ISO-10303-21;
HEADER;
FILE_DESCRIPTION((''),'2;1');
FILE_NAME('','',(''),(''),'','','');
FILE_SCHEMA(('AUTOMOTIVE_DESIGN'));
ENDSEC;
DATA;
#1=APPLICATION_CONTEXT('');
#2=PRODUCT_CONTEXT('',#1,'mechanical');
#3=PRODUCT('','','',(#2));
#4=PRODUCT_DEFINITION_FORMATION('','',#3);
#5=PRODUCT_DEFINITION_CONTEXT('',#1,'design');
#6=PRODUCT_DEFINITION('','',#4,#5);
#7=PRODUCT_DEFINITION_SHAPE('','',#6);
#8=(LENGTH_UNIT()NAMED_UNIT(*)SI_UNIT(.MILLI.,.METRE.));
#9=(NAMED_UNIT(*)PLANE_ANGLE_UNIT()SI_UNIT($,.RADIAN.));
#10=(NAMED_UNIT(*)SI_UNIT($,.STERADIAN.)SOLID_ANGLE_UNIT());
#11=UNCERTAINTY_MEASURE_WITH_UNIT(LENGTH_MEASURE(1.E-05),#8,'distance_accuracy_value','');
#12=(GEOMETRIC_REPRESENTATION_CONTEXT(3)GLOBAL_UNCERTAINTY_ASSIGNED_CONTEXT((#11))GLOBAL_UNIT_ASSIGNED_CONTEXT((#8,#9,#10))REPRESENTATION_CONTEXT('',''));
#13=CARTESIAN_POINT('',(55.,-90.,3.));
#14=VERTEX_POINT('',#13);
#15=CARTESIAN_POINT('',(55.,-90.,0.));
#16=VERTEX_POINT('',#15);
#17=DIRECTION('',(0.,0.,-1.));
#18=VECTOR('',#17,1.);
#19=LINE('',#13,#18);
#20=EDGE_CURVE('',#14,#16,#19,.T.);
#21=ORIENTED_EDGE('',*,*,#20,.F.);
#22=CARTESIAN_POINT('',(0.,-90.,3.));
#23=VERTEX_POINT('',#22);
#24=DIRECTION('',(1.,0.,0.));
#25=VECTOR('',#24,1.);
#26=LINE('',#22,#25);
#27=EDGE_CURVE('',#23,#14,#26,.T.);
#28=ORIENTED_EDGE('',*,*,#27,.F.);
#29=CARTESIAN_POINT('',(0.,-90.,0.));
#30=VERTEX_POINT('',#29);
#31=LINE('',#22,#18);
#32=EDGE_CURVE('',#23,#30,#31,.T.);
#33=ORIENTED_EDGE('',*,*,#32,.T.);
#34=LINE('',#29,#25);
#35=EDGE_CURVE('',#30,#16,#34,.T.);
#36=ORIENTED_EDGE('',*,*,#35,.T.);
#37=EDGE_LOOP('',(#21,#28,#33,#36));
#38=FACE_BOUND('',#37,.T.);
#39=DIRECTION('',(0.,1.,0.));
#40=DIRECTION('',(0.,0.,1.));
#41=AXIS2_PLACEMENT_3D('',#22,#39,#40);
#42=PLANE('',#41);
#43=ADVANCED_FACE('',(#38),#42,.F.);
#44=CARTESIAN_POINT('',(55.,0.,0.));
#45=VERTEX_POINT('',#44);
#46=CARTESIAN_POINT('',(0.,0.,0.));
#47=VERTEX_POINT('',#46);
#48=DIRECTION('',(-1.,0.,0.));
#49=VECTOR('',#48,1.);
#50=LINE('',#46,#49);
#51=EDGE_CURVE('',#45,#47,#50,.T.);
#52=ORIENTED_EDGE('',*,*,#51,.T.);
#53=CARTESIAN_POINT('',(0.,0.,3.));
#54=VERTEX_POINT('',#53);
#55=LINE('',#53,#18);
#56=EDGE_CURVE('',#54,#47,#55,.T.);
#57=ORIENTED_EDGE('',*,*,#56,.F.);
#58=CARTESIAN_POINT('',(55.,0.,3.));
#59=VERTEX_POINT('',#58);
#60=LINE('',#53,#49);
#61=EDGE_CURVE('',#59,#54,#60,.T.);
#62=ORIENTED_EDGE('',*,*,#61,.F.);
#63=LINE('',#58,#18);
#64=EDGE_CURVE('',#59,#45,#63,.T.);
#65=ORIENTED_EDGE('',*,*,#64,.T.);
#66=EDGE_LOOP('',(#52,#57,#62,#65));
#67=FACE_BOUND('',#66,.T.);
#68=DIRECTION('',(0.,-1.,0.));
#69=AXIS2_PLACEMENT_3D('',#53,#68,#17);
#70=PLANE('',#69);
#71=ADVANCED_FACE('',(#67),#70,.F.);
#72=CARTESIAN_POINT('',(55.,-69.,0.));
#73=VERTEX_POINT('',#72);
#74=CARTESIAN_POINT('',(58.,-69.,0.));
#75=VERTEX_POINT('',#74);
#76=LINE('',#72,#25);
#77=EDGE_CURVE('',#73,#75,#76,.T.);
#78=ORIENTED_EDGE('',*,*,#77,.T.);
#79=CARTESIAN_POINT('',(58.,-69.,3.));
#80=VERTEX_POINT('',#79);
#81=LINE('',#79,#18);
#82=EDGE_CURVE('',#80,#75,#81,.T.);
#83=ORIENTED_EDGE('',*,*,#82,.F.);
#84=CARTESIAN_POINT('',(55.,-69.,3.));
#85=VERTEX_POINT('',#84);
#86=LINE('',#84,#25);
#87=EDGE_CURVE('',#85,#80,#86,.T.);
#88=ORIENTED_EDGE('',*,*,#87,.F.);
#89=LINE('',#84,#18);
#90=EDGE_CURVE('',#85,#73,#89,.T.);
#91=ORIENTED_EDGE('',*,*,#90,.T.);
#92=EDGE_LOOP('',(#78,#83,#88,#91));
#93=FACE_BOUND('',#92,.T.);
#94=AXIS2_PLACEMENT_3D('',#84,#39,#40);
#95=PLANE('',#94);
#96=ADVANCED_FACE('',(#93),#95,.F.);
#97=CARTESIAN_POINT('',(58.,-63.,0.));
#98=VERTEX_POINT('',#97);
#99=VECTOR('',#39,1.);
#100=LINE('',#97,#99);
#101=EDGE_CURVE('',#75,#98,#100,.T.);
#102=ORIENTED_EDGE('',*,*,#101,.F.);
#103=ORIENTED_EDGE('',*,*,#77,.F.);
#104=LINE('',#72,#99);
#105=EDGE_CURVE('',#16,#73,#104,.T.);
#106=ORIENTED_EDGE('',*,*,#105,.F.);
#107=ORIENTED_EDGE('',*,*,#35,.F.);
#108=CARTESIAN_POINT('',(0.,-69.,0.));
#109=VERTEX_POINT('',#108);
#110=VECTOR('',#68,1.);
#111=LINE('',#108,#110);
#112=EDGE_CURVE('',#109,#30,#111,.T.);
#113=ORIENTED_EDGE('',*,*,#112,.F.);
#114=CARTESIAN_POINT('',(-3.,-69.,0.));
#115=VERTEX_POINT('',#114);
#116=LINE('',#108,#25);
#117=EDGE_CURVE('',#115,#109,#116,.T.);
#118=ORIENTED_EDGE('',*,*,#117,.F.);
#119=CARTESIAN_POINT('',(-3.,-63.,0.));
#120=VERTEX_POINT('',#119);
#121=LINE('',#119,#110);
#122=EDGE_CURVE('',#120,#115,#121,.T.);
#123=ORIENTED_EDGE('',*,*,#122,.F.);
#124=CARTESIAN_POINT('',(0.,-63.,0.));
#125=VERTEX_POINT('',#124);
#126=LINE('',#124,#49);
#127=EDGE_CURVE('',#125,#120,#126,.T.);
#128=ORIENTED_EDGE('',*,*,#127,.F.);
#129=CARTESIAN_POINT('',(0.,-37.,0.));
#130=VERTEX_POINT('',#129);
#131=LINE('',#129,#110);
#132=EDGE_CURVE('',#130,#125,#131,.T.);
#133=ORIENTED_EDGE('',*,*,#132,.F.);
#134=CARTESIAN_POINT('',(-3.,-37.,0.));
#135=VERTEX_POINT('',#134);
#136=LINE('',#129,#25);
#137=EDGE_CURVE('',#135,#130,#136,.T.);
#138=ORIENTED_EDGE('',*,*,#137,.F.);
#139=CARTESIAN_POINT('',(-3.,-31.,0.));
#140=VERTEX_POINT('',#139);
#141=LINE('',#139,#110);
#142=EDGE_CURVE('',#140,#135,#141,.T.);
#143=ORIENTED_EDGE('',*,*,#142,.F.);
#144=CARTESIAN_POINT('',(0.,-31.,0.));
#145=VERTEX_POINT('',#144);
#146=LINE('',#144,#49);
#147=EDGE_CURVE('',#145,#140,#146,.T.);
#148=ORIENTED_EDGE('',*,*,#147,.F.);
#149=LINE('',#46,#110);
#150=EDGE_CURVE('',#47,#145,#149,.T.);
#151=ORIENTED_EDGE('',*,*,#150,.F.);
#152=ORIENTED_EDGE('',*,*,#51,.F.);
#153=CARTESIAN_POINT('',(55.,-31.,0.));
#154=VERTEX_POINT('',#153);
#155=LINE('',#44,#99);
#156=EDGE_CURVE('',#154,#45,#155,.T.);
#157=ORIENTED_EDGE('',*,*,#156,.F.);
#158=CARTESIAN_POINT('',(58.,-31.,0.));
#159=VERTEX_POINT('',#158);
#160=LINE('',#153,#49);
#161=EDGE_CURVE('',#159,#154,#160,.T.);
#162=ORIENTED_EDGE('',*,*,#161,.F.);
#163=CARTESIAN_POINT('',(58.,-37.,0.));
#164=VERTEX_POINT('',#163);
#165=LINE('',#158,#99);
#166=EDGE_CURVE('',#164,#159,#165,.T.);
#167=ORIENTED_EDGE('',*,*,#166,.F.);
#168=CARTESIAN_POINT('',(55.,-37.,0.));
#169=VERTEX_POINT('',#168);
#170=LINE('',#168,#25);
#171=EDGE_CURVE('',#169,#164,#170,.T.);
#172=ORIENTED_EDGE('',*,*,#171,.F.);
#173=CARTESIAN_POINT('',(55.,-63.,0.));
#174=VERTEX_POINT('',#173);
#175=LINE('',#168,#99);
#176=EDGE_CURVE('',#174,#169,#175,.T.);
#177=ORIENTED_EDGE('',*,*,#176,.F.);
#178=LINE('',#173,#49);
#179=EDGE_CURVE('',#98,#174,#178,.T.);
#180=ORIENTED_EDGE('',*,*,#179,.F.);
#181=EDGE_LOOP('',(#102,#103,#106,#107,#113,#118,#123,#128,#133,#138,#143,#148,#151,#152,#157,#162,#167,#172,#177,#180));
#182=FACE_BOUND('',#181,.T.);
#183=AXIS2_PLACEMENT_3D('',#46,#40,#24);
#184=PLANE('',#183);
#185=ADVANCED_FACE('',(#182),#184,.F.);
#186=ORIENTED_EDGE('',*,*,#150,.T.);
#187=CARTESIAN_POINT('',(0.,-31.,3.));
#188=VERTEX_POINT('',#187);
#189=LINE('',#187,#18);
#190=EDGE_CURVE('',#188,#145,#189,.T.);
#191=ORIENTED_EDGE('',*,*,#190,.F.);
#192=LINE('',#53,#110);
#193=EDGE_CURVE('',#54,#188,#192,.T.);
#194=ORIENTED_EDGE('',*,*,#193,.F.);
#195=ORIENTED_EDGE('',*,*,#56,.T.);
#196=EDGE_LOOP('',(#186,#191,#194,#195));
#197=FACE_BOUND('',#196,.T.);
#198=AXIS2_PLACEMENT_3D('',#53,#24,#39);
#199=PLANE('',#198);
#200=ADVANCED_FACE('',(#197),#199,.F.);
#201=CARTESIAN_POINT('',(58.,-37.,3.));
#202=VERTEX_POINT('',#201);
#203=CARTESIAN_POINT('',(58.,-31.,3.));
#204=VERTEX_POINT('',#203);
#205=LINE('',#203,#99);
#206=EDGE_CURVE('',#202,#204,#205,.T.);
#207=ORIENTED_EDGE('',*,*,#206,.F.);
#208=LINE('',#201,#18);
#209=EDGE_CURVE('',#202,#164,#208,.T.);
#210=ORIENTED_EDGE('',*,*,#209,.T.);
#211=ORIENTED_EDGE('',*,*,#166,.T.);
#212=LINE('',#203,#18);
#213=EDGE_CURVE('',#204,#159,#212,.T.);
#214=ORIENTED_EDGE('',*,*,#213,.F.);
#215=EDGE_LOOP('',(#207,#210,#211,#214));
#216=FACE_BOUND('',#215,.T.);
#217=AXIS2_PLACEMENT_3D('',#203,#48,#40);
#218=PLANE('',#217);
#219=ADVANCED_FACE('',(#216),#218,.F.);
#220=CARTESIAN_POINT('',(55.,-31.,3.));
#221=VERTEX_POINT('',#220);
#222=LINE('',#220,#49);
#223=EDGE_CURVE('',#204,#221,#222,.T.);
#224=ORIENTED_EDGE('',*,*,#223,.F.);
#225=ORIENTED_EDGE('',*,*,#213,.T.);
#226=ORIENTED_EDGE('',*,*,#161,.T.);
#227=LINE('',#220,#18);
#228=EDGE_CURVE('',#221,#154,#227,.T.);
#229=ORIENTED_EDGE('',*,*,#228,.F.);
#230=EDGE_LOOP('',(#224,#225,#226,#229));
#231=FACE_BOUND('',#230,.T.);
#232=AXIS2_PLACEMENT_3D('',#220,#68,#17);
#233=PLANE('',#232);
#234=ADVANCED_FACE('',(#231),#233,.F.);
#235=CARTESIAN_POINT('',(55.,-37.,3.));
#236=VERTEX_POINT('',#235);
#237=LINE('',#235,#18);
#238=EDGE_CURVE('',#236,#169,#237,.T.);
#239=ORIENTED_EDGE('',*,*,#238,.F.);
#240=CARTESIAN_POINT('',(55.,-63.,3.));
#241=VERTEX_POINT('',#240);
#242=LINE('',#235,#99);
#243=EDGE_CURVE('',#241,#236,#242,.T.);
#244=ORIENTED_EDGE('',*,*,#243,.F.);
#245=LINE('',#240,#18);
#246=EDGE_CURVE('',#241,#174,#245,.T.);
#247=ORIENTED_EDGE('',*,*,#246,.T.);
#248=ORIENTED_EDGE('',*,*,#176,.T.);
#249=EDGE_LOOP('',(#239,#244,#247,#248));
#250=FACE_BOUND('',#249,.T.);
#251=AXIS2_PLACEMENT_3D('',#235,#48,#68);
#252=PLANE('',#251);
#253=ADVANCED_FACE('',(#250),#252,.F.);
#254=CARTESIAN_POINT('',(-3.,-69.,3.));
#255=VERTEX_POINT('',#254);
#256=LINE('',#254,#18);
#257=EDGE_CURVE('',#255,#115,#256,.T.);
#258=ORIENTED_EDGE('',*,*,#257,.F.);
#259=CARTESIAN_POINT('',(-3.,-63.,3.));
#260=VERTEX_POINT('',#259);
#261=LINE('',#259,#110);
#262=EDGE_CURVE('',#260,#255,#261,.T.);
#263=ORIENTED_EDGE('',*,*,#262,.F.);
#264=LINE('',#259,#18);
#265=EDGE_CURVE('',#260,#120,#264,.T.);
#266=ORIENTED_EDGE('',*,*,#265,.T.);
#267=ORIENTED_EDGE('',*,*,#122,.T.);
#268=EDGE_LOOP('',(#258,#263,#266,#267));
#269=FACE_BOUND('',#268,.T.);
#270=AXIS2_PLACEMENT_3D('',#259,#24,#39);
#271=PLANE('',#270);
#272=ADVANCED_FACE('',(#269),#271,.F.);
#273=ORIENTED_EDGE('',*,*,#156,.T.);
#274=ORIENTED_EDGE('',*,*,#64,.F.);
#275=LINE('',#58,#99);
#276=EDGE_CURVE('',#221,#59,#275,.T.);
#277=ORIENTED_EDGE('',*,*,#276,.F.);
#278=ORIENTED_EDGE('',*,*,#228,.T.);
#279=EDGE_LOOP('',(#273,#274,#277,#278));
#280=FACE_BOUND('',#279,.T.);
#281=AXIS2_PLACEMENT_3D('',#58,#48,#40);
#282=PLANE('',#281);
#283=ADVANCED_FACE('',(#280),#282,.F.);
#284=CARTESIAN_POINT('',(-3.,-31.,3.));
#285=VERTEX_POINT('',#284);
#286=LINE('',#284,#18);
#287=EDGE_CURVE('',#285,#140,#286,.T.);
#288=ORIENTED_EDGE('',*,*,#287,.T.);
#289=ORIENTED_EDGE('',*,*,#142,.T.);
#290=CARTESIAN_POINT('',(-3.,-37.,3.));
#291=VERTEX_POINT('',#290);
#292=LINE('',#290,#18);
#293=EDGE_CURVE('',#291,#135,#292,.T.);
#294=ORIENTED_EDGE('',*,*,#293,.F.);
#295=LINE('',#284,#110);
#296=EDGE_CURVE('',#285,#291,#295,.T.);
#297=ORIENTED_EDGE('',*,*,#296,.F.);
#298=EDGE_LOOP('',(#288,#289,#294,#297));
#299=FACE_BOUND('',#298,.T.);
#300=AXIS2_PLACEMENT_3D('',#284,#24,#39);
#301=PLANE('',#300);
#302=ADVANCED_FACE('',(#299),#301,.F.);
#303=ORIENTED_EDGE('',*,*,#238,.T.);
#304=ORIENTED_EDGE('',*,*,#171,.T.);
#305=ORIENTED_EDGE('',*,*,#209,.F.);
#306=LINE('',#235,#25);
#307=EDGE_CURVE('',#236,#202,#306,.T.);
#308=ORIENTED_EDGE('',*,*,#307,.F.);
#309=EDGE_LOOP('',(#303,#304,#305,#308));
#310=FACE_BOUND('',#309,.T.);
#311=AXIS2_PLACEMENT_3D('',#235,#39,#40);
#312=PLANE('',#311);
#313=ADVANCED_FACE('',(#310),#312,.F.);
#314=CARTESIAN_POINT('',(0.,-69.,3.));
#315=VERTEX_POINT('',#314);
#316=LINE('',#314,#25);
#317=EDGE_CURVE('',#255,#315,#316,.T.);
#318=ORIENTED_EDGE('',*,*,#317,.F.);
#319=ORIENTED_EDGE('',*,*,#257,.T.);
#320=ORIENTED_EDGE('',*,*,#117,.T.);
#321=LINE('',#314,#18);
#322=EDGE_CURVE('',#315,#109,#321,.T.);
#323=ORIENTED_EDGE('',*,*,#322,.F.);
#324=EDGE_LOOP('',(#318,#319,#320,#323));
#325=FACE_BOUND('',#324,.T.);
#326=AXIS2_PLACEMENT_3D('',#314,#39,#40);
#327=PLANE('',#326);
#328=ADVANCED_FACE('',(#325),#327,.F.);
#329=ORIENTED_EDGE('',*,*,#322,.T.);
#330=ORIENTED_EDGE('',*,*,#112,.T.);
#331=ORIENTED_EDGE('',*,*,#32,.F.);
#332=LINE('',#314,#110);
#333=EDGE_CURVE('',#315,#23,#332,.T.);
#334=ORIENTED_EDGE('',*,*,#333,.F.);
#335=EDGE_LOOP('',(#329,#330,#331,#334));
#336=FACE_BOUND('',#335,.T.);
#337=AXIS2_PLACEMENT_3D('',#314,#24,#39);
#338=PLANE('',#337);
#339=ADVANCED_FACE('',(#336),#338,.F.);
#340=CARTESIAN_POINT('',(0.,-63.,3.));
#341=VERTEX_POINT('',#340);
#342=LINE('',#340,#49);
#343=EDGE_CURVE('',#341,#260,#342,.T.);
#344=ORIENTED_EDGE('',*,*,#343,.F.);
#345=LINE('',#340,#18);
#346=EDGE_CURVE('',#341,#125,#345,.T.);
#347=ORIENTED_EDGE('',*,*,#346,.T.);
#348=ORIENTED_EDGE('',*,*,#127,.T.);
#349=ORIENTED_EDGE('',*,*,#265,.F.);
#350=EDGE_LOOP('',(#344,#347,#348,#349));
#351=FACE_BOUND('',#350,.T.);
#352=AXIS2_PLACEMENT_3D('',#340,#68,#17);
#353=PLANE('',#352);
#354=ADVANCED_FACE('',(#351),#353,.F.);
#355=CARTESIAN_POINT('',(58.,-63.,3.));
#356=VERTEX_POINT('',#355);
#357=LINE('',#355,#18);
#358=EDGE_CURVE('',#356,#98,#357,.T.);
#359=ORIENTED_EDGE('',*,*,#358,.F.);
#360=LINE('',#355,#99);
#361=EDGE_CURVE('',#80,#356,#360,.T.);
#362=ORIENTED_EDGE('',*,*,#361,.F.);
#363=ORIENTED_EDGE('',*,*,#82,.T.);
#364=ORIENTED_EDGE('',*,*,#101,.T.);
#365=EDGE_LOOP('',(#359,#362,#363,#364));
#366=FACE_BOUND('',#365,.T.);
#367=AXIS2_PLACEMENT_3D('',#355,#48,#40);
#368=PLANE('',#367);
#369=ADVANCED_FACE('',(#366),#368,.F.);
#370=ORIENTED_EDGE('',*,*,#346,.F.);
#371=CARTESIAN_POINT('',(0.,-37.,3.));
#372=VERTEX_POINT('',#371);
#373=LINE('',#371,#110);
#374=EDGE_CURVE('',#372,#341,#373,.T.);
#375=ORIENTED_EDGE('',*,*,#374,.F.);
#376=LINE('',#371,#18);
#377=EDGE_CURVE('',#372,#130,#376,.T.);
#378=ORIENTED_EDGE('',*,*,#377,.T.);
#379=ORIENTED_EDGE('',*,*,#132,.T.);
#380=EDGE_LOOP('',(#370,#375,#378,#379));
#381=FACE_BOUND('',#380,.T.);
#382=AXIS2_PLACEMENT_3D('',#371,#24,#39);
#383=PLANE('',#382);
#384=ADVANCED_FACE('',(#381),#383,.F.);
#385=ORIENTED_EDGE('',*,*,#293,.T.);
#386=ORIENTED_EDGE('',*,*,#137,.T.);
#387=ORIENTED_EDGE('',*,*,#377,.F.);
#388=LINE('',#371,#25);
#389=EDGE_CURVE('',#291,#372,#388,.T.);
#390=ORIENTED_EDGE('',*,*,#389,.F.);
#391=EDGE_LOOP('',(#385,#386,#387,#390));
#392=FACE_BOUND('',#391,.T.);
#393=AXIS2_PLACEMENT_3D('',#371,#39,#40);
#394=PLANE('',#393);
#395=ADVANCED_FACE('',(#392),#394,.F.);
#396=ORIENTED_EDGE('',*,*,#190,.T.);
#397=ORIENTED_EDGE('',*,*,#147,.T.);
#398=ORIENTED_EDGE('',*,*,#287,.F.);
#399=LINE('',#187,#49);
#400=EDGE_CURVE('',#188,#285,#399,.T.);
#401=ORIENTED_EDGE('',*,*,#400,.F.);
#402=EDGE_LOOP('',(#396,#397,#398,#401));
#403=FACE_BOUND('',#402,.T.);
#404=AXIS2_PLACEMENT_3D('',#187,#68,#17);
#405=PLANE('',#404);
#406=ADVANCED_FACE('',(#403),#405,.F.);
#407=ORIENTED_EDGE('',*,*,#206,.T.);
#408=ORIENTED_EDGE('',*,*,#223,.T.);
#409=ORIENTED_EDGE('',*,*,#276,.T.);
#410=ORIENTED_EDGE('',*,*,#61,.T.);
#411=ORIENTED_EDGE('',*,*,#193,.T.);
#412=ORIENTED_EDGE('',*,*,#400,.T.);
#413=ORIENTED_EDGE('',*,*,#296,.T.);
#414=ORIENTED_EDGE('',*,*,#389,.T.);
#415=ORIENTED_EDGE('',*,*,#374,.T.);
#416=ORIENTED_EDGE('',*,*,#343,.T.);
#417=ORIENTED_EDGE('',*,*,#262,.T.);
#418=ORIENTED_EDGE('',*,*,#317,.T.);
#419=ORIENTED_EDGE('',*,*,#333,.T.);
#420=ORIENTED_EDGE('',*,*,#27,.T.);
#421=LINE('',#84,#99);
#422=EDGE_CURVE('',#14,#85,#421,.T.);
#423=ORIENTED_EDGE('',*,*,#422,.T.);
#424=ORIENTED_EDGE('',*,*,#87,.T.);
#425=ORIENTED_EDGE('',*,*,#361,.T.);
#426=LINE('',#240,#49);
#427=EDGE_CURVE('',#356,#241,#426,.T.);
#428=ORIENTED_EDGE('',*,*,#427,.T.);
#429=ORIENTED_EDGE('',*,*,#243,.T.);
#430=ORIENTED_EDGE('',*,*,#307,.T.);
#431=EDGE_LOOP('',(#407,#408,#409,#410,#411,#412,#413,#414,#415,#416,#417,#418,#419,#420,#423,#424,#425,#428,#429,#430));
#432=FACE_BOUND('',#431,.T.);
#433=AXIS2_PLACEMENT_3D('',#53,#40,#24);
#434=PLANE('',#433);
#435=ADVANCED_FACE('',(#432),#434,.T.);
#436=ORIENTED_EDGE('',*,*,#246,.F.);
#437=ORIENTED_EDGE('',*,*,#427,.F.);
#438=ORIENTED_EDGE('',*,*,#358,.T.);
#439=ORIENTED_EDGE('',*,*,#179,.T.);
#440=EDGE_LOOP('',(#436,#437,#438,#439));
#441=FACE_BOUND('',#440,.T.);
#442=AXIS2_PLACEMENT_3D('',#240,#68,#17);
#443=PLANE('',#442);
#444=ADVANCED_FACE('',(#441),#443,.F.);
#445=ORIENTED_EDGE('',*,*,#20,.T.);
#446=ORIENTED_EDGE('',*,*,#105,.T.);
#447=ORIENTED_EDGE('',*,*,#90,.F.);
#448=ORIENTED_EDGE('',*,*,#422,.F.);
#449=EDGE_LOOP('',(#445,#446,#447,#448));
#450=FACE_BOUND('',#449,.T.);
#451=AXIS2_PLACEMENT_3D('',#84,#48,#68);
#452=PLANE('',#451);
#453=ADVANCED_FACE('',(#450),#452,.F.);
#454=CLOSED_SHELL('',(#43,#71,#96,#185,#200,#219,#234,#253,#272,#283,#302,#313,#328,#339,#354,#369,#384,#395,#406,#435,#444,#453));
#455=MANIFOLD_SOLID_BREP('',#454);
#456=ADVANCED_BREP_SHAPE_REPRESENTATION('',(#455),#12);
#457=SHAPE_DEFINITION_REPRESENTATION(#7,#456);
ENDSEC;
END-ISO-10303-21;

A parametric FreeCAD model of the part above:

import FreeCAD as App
import Part
import Sketcher
from FreeCAD import Vector

doc = App.newDocument("Part")
body = doc.addObject("PartDesign::Body", "Body")

sketch1 = body.newObject("Sketcher::SketchObject", "Sketch")
sketch1.AttachmentSupport = (doc.getObject("XY_Plane"), [""])
sketch1.MapMode = "FlatFace"
sketch1.addGeometry(Part.LineSegment(Vector(55, 0, 0), Vector(0, 0, 0)), False)
sketch1.addGeometry(Part.LineSegment(Vector(0, 0, 0), Vector(0, -31, 0)), False)
sketch1.addGeometry(Part.LineSegment(Vector(0, -31, 0), Vector(-3, -31, 0)), False)
sketch1.addGeometry(Part.LineSegment(Vector(-3, -31, 0), Vector(-3, -37, 0)), False)
sketch1.addGeometry(Part.LineSegment(Vector(-3, -37, 0), Vector(0, -37, 0)), False)
sketch1.addGeometry(Part.LineSegment(Vector(0, -37, 0), Vector(0, -63, 0)), False)
sketch1.addGeometry(Part.LineSegment(Vector(0, -63, 0), Vector(-3, -63, 0)), False)
sketch1.addGeometry(Part.LineSegment(Vector(-3, -63, 0), Vector(-3, -69, 0)), False)
sketch1.addGeometry(Part.LineSegment(Vector(-3, -69, 0), Vector(0, -69, 0)), False)
sketch1.addGeometry(Part.LineSegment(Vector(0, -69, 0), Vector(0, -90, 0)), False)
sketch1.addGeometry(Part.LineSegment(Vector(0, -90, 0), Vector(55, -90, 0)), False)
sketch1.addGeometry(Part.LineSegment(Vector(55, -90, 0), Vector(55, -69, 0)), False)
sketch1.addGeometry(Part.LineSegment(Vector(55, -69, 0), Vector(58, -69, 0)), False)
sketch1.addGeometry(Part.LineSegment(Vector(58, -69, 0), Vector(58, -63, 0)), False)
sketch1.addGeometry(Part.LineSegment(Vector(58, -63, 0), Vector(55, -63, 0)), False)
sketch1.addGeometry(Part.LineSegment(Vector(55, -63, 0), Vector(55, -37, 0)), False)
sketch1.addGeometry(Part.LineSegment(Vector(55, -37, 0), Vector(58, -37, 0)), False)
sketch1.addGeometry(Part.LineSegment(Vector(58, -37, 0), Vector(58, -31, 0)), False)
sketch1.addGeometry(Part.LineSegment(Vector(58, -31, 0), Vector(55, -31, 0)), False)
sketch1.addGeometry(Part.LineSegment(Vector(55, -31, 0), Vector(55, 0, 0)), False)
sketch1.addConstraint(Sketcher.Constraint("Coincident", 0, 2, 1, 1))
sketch1.addConstraint(Sketcher.Constraint("Coincident", 1, 2, 2, 1))
sketch1.addConstraint(Sketcher.Constraint("Coincident", 2, 2, 3, 1))
sketch1.addConstraint(Sketcher.Constraint("Coincident", 3, 2, 4, 1))
sketch1.addConstraint(Sketcher.Constraint("Coincident", 4, 2, 5, 1))
sketch1.addConstraint(Sketcher.Constraint("Coincident", 5, 2, 6, 1))
sketch1.addConstraint(Sketcher.Constraint("Coincident", 6, 2, 7, 1))
sketch1.addConstraint(Sketcher.Constraint("Coincident", 7, 2, 8, 1))
sketch1.addConstraint(Sketcher.Constraint("Coincident", 8, 2, 9, 1))
sketch1.addConstraint(Sketcher.Constraint("Coincident", 9, 2, 10, 1))
sketch1.addConstraint(Sketcher.Constraint("Coincident", 10, 2, 11, 1))
sketch1.addConstraint(Sketcher.Constraint("Coincident", 11, 2, 12, 1))
sketch1.addConstraint(Sketcher.Constraint("Coincident", 12, 2, 13, 1))
sketch1.addConstraint(Sketcher.Constraint("Coincident", 13, 2, 14, 1))
sketch1.addConstraint(Sketcher.Constraint("Coincident", 14, 2, 15, 1))
sketch1.addConstraint(Sketcher.Constraint("Coincident", 15, 2, 16, 1))
sketch1.addConstraint(Sketcher.Constraint("Coincident", 16, 2, 17, 1))
sketch1.addConstraint(Sketcher.Constraint("Coincident", 17, 2, 18, 1))
sketch1.addConstraint(Sketcher.Constraint("Coincident", 18, 2, 19, 1))
sketch1.addConstraint(Sketcher.Constraint("Coincident", 19, 2, 0, 1))
sketch1.addConstraint(Sketcher.Constraint("Horizontal", 0))
sketch1.addConstraint(Sketcher.Constraint("Vertical", 1))
sketch1.addConstraint(Sketcher.Constraint("Horizontal", 2))
sketch1.addConstraint(Sketcher.Constraint("Vertical", 3))
sketch1.addConstraint(Sketcher.Constraint("Horizontal", 4))
sketch1.addConstraint(Sketcher.Constraint("Vertical", 5))
sketch1.addConstraint(Sketcher.Constraint("Horizontal", 6))
sketch1.addConstraint(Sketcher.Constraint("Vertical", 7))
sketch1.addConstraint(Sketcher.Constraint("Horizontal", 8))
sketch1.addConstraint(Sketcher.Constraint("Vertical", 9))
sketch1.addConstraint(Sketcher.Constraint("Horizontal", 10))
sketch1.addConstraint(Sketcher.Constraint("Vertical", 11))
sketch1.addConstraint(Sketcher.Constraint("Horizontal", 12))
sketch1.addConstraint(Sketcher.Constraint("Vertical", 13))
sketch1.addConstraint(Sketcher.Constraint("Horizontal", 14))
sketch1.addConstraint(Sketcher.Constraint("Vertical", 15))
sketch1.addConstraint(Sketcher.Constraint("Horizontal", 16))
sketch1.addConstraint(Sketcher.Constraint("Vertical", 17))
sketch1.addConstraint(Sketcher.Constraint("Horizontal", 18))
sketch1.addConstraint(Sketcher.Constraint("Vertical", 19))
sketch1.addConstraint(Sketcher.Constraint("Coincident", 0, 2, -1, 1))
sketch1.addConstraint(Sketcher.Constraint("PointOnObject", 4, 2, -2))
sketch1.addConstraint(Sketcher.Constraint("PointOnObject", 8, 2, -2))
sketch1.addConstraint(Sketcher.Constraint("Horizontal", 8, 2, 11, 2))
sketch1.addConstraint(Sketcher.Constraint("Horizontal", 6, 2, 13, 2))
sketch1.addConstraint(Sketcher.Constraint("Horizontal", 4, 2, 15, 2))
sketch1.addConstraint(Sketcher.Constraint("Horizontal", 2, 2, 17, 2))
sketch1.addConstraint(Sketcher.Constraint("Vertical", 3, 2, 6, 2))
sketch1.addConstraint(Sketcher.Constraint("Vertical", 11, 2, 14, 2))
sketch1.addConstraint(Sketcher.Constraint("Vertical", 13, 2, 16, 2))
sketch1.addConstraint(Sketcher.Constraint("Vertical", 15, 2, 18, 2))
sketch1.addConstraint(Sketcher.Constraint("Equal", 8, 12))
sketch1.addConstraint(Sketcher.Constraint("Equal", 3, 7))
sketch1.addConstraint(Sketcher.Constraint("DistanceX", 0, 2, 0, 1, 55.0))
sketch1.addConstraint(Sketcher.Constraint("DistanceX", 2, 2, 2, 1, 3.0))
sketch1.addConstraint(Sketcher.Constraint("DistanceY", 1, 2, 1, 1, 31.0))
sketch1.addConstraint(Sketcher.Constraint("DistanceY", 3, 2, 3, 1, 6.0))
sketch1.addConstraint(Sketcher.Constraint("DistanceY", 5, 2, 5, 1, 26.0))
sketch1.addConstraint(Sketcher.Constraint("DistanceY", 9, 2, 9, 1, 21.0))
pad1 = body.newObject("PartDesign::Pad", "Pad")
pad1.Profile = sketch1
pad1.Length = 3

doc.recompute()
